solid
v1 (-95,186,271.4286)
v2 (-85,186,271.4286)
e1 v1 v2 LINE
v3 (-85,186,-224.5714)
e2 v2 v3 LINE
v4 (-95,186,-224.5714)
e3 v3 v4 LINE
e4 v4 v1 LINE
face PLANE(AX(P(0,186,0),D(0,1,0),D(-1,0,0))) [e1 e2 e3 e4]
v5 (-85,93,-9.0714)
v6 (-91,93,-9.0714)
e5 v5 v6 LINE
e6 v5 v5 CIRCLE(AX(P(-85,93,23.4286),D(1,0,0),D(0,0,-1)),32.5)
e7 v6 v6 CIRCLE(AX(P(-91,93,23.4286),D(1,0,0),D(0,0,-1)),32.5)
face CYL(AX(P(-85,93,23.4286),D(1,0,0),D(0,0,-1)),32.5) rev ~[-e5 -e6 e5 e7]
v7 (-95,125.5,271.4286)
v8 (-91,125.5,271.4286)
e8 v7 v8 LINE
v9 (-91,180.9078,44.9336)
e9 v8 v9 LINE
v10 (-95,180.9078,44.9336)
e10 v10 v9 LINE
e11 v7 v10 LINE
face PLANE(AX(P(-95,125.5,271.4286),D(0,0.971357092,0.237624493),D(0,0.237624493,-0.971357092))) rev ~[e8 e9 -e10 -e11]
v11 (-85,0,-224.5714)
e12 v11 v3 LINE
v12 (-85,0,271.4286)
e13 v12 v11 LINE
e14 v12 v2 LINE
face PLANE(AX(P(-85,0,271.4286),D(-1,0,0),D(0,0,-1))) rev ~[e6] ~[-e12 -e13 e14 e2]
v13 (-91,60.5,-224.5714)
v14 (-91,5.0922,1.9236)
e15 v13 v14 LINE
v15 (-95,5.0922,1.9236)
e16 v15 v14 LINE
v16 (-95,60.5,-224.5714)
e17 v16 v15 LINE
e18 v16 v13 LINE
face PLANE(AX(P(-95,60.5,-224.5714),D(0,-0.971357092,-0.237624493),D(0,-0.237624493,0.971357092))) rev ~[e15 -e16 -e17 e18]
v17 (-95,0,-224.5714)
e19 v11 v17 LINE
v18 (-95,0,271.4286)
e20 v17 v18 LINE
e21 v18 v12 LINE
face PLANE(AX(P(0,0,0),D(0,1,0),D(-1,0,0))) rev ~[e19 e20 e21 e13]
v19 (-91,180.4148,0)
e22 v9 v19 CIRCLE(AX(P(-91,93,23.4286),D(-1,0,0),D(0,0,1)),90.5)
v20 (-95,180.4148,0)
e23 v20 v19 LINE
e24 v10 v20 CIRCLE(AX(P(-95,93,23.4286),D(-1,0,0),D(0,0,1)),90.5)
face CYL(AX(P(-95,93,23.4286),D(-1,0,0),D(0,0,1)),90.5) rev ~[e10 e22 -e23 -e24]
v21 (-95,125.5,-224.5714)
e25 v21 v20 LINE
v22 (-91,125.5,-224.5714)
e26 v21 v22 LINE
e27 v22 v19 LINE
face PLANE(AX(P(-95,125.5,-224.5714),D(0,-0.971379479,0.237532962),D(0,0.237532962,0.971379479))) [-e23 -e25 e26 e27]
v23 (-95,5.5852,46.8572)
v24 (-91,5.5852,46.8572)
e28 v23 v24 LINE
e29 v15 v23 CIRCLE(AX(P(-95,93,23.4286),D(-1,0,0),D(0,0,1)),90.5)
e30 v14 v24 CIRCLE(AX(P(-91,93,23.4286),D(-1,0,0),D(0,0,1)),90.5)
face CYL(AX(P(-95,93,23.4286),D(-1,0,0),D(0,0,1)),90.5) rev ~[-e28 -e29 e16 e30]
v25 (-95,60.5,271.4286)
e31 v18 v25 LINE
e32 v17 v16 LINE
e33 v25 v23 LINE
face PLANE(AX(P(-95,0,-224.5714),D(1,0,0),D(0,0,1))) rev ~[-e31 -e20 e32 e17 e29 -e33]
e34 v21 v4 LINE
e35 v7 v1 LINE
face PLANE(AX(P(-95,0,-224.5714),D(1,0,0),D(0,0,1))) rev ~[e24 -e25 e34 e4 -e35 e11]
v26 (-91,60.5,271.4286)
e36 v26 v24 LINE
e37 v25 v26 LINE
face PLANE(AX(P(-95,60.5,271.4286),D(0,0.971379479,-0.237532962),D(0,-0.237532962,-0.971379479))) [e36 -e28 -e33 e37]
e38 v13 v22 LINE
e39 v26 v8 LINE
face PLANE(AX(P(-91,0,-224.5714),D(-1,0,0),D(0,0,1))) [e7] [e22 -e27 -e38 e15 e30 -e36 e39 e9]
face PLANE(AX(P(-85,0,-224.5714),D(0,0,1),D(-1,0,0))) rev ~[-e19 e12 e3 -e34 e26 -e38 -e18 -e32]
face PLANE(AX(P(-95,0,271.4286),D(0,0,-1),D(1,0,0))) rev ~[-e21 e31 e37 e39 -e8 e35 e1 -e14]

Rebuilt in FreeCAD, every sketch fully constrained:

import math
import FreeCAD as App
import Part
import Sketcher
Q = App.Units.Quantity

doc = App.newDocument("Part")
body = doc.addObject("PartDesign::Body", "Body")

sketch1 = body.newObject("Sketcher::SketchObject", "Sketch")
sketch1.AttachmentSupport = (doc.getObject("XZ_Plane"), [""])
sketch1.MapMode = "FlatFace"
sketch1.addGeometry([
    Part.LineSegment(App.Vector(-95, -224.5714, 0), App.Vector(-95, 271.4286, 0)),
    Part.LineSegment(App.Vector(-95, 271.4286, 0), App.Vector(-85, 271.4286, 0)),
    Part.LineSegment(App.Vector(-85, 271.4286, 0), App.Vector(-85, -224.5714, 0)),
    Part.LineSegment(App.Vector(-85, -224.5714, 0), App.Vector(-95, -224.5714, 0)),
], False)
sketch1.addConstraint([
    Sketcher.Constraint("Coincident", 0, 2, 1, 1),
    Sketcher.Constraint("Coincident", 1, 2, 2, 1),
    Sketcher.Constraint("Coincident", 2, 2, 3, 1),
    Sketcher.Constraint("Coincident", 3, 2, 0, 1),
    Sketcher.Constraint("Vertical", 0),
    Sketcher.Constraint("Horizontal", 1),
    Sketcher.Constraint("Vertical", 2),
    Sketcher.Constraint("Horizontal", 3),
    Sketcher.Constraint("DistanceX", 1, 1, 1, 2, Q("10 mm")),
    Sketcher.Constraint("DistanceY", 0, 1, 0, 2, Q("496 mm")),
    Sketcher.Constraint("DistanceX", 0, 2, -1, 1, Q("95 mm")),
    Sketcher.Constraint("DistanceY", -1, 1, 0, 2, Q("271.4286 mm")),
])
pad1 = body.newObject("PartDesign::Pad", "Pad")
pad1.Profile = sketch1
pad1.Length = 186
pad1.Reversed = True

sketch2 = body.newObject("Sketcher::SketchObject", "Sketch001")
sketch2.AttachmentSupport = (doc.getObject("YZ_Plane"), [""])
sketch2.MapMode = "FlatFace"
sketch2.AttachmentOffset = App.Placement(App.Vector(0, 0, -85), App.Rotation())
sketch2.addGeometry(Part.Circle(App.Vector(93, 23.4286, 0), App.Vector(0, 0, 1), 32.5), False)
sketch2.addConstraint([
    Sketcher.Constraint("Diameter", 0, Q("65 mm")),
    Sketcher.Constraint("DistanceX", -1, 1, 0, 3, Q("93 mm")),
    Sketcher.Constraint("DistanceY", -1, 1, 0, 3, Q("23.4286 mm")),
])
pocket1 = body.newObject("PartDesign::Pocket", "Pocket")
pocket1.Profile = sketch2
pocket1.Length = 186

sketch3 = body.newObject("Sketcher::SketchObject", "Sketch002")
sketch3.AttachmentSupport = (doc.getObject("YZ_Plane"), [""])
sketch3.MapMode = "FlatFace"
sketch3.AttachmentOffset = App.Placement(App.Vector(0, 0, -95), App.Rotation())
sketch3.addGeometry([
    Part.ArcOfCircle(Part.Circle(App.Vector(93, 23.4286, 0), App.Vector(0, 0, 1), 90.5), math.radians(164.996407), math.radians(193.746371)),
    Part.LineSegment(App.Vector(5.5852, 46.8572, 0), App.Vector(60.5, 271.4286, 0)),
    Part.LineSegment(App.Vector(60.5, 271.4286, 0), App.Vector(125.5, 271.4286, 0)),
    Part.LineSegment(App.Vector(125.5, 271.4286, 0), App.Vector(180.9078, 44.9336, 0)),
    Part.ArcOfCircle(Part.Circle(App.Vector(93, 23.4286, 0), App.Vector(0, 0, 1), 90.5), math.radians(-15.003593), math.radians(13.746371)),
    Part.LineSegment(App.Vector(180.4148, 0, 0), App.Vector(125.5, -224.5714, 0)),
    Part.LineSegment(App.Vector(125.5, -224.5714, 0), App.Vector(60.5, -224.5714, 0)),
    Part.LineSegment(App.Vector(60.5, -224.5714, 0), App.Vector(5.0922, 1.9236, 0)),
    Part.Circle(App.Vector(93, 23.4286, 0), App.Vector(0, 0, 1), 32.5),
], False)
sketch3.addConstraint([
    Sketcher.Constraint("Coincident", 0, 1, 1, 1),
    Sketcher.Constraint("Coincident", 1, 2, 2, 1),
    Sketcher.Constraint("Coincident", 2, 2, 3, 1),
    Sketcher.Constraint("Coincident", 3, 2, 4, 2),
    Sketcher.Constraint("Coincident", 4, 1, 5, 1),
    Sketcher.Constraint("Coincident", 5, 2, 6, 1),
    Sketcher.Constraint("Coincident", 6, 2, 7, 1),
    Sketcher.Constraint("Coincident", 7, 2, 0, 2),
    Sketcher.Constraint("Horizontal", 2),
    Sketcher.Constraint("Horizontal", 6),
    Sketcher.Constraint("Coincident", 4, 3, 0, 3),
    Sketcher.Constraint("Coincident", 8, 3, 0, 3),
    Sketcher.Constraint("PointOnObject", 4, 1, -1),
    Sketcher.Constraint("Radius", 0, Q("90.5 mm")),
    Sketcher.Constraint("Radius", 4, Q("90.5 mm")),
    Sketcher.Constraint("Diameter", 8, Q("65 mm")),
    Sketcher.Constraint("DistanceX", 2, 1, 2, 2, Q("65 mm")),
    Sketcher.Constraint("DistanceX", 6, 2, 6, 1, Q("65 mm")),
    Sketcher.Constraint("DistanceX", -1, 1, 0, 3, Q("93 mm")),
    Sketcher.Constraint("DistanceY", 0, 3, 1, 2, Q("248 mm")),
    Sketcher.Constraint("DistanceY", 5, 2, 0, 3, Q("248 mm")),
    Sketcher.Constraint("DistanceX", -1, 1, 1, 2, Q("60.5 mm")),
    Sketcher.Constraint("DistanceX", -1, 1, 5, 2, Q("125.5 mm")),
    Sketcher.Constraint("DistanceY", 0, 3, 3, 2, Q("21.505 mm")),
    Sketcher.Constraint("DistanceX", 4, 1, 3, 2, Q("0.493 mm")),
    Sketcher.Constraint("DistanceX", 7, 2, 0, 1, Q("0.493 mm")),
    Sketcher.Constraint("DistanceY", 7, 2, 0, 3, Q("21.505 mm")),
])
pocket2 = body.newObject("PartDesign::Pocket", "Pocket001")
pocket2.Profile = sketch3
pocket2.Length = 4
pocket2.Reversed = True

doc.recompute()
